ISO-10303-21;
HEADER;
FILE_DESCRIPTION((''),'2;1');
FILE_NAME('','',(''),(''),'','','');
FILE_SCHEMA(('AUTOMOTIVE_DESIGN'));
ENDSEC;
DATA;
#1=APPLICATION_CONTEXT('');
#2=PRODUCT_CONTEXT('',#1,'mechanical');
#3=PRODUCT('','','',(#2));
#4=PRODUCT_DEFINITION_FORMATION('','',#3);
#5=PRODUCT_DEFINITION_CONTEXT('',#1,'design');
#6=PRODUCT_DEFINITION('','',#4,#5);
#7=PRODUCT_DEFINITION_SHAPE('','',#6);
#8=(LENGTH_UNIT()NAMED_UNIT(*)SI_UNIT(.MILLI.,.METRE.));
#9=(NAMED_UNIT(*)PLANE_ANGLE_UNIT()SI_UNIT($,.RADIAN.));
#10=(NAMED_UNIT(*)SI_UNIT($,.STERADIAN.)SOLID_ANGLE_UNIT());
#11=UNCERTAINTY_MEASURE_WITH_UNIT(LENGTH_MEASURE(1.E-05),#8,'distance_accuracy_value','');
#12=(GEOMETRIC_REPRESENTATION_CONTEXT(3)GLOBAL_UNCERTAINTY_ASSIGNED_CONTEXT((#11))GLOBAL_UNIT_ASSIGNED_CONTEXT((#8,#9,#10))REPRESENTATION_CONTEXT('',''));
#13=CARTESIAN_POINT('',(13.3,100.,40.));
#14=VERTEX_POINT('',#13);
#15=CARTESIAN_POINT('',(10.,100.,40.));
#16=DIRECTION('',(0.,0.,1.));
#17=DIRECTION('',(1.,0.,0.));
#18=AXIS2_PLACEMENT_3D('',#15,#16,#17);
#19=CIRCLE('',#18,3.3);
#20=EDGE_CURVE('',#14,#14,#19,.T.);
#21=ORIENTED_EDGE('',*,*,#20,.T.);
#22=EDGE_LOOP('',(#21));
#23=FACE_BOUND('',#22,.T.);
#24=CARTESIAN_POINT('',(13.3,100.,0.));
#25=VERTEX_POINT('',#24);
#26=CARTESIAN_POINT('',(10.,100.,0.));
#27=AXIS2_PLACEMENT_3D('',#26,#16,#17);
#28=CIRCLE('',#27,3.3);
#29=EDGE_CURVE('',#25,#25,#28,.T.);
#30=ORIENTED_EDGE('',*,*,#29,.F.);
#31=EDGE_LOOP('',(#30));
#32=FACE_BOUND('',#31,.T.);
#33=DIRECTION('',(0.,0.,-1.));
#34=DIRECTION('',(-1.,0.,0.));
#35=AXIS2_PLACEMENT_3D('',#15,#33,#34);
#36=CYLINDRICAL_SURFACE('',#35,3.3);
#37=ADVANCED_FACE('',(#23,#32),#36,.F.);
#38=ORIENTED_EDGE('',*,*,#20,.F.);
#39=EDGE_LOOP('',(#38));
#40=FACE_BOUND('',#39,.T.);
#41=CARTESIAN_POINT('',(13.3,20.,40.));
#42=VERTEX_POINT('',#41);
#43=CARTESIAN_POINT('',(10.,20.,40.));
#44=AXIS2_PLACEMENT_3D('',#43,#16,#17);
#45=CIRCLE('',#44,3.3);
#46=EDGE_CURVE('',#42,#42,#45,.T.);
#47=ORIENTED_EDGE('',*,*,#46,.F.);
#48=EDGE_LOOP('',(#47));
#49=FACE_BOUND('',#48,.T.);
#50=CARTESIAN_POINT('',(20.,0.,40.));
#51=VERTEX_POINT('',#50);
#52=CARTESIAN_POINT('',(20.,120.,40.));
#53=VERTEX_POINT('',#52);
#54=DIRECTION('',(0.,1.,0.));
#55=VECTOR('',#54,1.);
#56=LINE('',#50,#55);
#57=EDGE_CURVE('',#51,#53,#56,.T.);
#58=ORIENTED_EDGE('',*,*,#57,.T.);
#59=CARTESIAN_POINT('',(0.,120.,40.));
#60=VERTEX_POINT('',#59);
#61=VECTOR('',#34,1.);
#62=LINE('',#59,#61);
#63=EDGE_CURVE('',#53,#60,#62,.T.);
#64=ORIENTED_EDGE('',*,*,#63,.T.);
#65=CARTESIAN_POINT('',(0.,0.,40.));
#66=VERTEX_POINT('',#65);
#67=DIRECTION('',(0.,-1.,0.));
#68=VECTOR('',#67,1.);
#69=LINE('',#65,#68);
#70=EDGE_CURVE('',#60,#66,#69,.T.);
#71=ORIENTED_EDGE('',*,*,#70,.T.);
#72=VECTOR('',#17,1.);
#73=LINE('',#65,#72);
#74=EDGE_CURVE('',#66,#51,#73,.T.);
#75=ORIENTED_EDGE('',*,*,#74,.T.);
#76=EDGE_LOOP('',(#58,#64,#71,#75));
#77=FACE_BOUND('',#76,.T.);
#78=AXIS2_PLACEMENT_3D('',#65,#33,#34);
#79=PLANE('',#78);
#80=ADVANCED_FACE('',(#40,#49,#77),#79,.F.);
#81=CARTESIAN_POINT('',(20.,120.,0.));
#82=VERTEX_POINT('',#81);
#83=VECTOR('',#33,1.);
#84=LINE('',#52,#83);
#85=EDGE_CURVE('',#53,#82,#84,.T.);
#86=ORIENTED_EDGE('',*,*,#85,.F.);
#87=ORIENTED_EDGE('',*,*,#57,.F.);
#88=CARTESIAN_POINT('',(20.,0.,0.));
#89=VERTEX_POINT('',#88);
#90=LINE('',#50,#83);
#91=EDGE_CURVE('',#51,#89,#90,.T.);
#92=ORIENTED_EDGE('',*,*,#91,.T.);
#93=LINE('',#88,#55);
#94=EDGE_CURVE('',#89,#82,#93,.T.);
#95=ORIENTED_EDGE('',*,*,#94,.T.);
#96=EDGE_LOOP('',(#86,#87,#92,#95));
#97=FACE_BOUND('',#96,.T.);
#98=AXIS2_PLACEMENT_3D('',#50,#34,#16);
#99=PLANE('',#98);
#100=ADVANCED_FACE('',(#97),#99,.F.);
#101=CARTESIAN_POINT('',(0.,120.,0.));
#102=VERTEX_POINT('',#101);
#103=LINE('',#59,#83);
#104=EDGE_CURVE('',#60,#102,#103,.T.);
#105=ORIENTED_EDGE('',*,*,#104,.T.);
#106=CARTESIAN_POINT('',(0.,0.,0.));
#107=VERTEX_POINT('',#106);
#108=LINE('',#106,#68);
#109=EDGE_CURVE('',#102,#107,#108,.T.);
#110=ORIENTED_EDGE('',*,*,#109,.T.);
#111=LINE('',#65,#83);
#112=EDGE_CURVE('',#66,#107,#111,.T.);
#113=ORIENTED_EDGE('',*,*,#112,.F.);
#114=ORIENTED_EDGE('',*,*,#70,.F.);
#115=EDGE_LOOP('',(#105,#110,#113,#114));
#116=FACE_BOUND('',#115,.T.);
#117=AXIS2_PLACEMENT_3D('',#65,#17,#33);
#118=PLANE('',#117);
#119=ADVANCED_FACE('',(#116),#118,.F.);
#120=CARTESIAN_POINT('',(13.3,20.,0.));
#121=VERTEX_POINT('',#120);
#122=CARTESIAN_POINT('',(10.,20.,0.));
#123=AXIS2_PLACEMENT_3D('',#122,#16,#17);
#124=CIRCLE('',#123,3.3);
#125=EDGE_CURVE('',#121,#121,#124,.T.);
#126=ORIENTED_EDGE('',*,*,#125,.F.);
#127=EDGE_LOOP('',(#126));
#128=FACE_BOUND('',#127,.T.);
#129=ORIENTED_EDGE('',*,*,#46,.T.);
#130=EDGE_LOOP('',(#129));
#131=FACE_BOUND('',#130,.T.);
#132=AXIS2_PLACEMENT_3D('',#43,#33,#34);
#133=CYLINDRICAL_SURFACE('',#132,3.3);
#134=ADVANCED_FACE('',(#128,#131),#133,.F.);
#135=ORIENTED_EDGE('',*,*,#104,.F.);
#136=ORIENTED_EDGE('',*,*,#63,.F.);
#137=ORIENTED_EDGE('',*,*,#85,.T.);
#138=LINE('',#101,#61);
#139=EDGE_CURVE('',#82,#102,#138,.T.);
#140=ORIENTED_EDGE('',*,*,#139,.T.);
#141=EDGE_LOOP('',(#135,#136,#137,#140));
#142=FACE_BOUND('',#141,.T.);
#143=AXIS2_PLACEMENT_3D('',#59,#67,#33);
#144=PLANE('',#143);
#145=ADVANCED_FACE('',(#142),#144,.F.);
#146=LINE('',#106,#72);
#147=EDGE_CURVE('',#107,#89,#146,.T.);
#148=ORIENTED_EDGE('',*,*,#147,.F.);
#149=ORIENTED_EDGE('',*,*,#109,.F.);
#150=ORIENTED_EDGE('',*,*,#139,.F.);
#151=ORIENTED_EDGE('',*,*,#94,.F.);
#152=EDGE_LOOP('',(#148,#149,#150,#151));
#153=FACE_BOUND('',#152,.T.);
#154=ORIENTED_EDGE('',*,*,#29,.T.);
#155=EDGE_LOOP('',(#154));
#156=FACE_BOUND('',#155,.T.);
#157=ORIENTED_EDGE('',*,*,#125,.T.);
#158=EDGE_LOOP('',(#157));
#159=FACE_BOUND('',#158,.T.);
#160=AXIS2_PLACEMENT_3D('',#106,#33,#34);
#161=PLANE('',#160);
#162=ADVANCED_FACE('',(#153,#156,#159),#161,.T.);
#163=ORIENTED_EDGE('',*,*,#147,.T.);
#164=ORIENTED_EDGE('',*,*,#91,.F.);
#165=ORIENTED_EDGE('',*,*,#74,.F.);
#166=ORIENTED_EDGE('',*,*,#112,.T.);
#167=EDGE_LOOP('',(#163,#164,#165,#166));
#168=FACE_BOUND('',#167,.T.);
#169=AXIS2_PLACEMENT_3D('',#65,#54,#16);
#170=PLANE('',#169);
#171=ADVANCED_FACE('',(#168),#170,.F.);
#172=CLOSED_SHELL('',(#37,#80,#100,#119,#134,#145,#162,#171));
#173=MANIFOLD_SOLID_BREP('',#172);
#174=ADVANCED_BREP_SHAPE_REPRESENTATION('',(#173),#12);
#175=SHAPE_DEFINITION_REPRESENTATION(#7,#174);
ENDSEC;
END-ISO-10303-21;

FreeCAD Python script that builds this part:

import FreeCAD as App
import Part
import Sketcher

doc = App.newDocument("Part")
body = doc.addObject("PartDesign::Body", "Body")

# Sketch on XY plane
sketch1 = doc.addObject("Sketcher::SketchObject", "Sketch")
body.addObject(sketch1)
sketch1.AttachmentSupport = (doc.XY_Plane, [""])
sketch1.MapMode = "FlatFace"
sketch1.addGeometry([
    Part.LineSegment(App.Vector(0, 120, 0), App.Vector(0, 0, 0)),  # 0
    Part.LineSegment(App.Vector(0, 0, 0), App.Vector(20, 0, 0)),  # 1
    Part.LineSegment(App.Vector(20, 0, 0), App.Vector(20, 120, 0)),  # 2
    Part.LineSegment(App.Vector(20, 120, 0), App.Vector(0, 120, 0)),  # 3
    Part.Circle(App.Vector(10, 20, 0), App.Vector(0, 0, 1), 3.3),  # 4
    Part.Circle(App.Vector(10, 100, 0), App.Vector(0, 0, 1), 3.3),  # 5
], False)
sketch1.addConstraint([
    Sketcher.Constraint("Coincident", 0, 2, 1, 1),
    Sketcher.Constraint("Coincident", 1, 2, 2, 1),
    Sketcher.Constraint("Coincident", 2, 2, 3, 1),
    Sketcher.Constraint("Coincident", 3, 2, 0, 1),
    Sketcher.Constraint("Vertical", 0),
    Sketcher.Constraint("Horizontal", 1),
    Sketcher.Constraint("Vertical", 2),
    Sketcher.Constraint("Horizontal", 3),
    Sketcher.Constraint("Coincident", 0, 2, -1, 1),
    Sketcher.Constraint("Equal", 4, 5),
    Sketcher.Constraint("Vertical", 4, 3, 5, 3),
    Sketcher.Constraint("Diameter", 4, 6.6),
    Sketcher.Constraint("DistanceX", 1, 1, 1, 2, 20.0),
    Sketcher.Constraint("DistanceY", 0, 2, 0, 1, 120.0),
    Sketcher.Constraint("DistanceX", -1, 1, 4, 3, 10.0),
    Sketcher.Constraint("DistanceY", -1, 1, 4, 3, 20.0),
    Sketcher.Constraint("DistanceY", -1, 1, 5, 3, 100.0),
])
pad1 = doc.addObject("PartDesign::Pad", "Pad")
body.addObject(pad1)
pad1.Profile = sketch1
pad1.Length = 40

doc.recompute()
